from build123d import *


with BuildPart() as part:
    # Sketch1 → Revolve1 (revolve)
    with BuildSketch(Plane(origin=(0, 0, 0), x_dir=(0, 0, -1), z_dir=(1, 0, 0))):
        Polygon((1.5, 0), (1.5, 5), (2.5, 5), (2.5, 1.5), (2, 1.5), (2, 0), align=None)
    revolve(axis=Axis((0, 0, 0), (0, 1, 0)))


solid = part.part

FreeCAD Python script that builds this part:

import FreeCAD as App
import Part
import Sketcher


def add_polygon(sketch, points):
    """Adds a closed chain of lines whose ends are joined by coincident constraints."""
    first, n = sketch.GeometryCount, len(points)
    for a, b in zip(points, points[1:] + points[:1]):
        sketch.addGeometry(Part.LineSegment(App.Vector(*a, 0), App.Vector(*b, 0)), False)
    for i in range(n):
        sketch.addConstraint(Sketcher.Constraint("Coincident", first + i, 2, first + (i + 1) % n, 1))

doc = App.newDocument("Part")
body = doc.addObject("PartDesign::Body", "Body")

# Sketch on YZ plane
sketch1 = doc.addObject("Sketcher::SketchObject", "Sketch")
body.addObject(sketch1)
sketch1.AttachmentSupport = (doc.YZ_Plane, [""])
sketch1.MapMode = "FlatFace"
add_polygon(sketch1, [(5, -1.5), (0, -1.5), (0, -2), (1.5, -2), (1.5, -2.5), (5, -2.5)])  # lines 0-5
sketch1.addConstraint([
    Sketcher.Constraint("Horizontal", 0),
    Sketcher.Constraint("Vertical", 1),
    Sketcher.Constraint("Horizontal", 2),
    Sketcher.Constraint("Vertical", 3),
    Sketcher.Constraint("Horizontal", 4),
    Sketcher.Constraint("Vertical", 5),
    Sketcher.Constraint("PointOnObject", 0, 2, -2),
    Sketcher.Constraint("Equal", 1, 3),
    Sketcher.Constraint("DistanceX", 0, 2, 0, 1, 5.0),
    Sketcher.Constraint("DistanceY", 5, 1, 5, 2, 1.0),
    Sketcher.Constraint("DistanceX", 2, 1, 2, 2, 1.5),
    Sketcher.Constraint("DistanceY", 1, 2, -1, 1, 2.0),
])
revolution = doc.addObject("PartDesign::Revolution", "Revolution")
body.addObject(revolution)
revolution.Profile = sketch1
revolution.ReferenceAxis = (sketch1, ["H_Axis"])
revolution.Angle = 360

doc.recompute()
